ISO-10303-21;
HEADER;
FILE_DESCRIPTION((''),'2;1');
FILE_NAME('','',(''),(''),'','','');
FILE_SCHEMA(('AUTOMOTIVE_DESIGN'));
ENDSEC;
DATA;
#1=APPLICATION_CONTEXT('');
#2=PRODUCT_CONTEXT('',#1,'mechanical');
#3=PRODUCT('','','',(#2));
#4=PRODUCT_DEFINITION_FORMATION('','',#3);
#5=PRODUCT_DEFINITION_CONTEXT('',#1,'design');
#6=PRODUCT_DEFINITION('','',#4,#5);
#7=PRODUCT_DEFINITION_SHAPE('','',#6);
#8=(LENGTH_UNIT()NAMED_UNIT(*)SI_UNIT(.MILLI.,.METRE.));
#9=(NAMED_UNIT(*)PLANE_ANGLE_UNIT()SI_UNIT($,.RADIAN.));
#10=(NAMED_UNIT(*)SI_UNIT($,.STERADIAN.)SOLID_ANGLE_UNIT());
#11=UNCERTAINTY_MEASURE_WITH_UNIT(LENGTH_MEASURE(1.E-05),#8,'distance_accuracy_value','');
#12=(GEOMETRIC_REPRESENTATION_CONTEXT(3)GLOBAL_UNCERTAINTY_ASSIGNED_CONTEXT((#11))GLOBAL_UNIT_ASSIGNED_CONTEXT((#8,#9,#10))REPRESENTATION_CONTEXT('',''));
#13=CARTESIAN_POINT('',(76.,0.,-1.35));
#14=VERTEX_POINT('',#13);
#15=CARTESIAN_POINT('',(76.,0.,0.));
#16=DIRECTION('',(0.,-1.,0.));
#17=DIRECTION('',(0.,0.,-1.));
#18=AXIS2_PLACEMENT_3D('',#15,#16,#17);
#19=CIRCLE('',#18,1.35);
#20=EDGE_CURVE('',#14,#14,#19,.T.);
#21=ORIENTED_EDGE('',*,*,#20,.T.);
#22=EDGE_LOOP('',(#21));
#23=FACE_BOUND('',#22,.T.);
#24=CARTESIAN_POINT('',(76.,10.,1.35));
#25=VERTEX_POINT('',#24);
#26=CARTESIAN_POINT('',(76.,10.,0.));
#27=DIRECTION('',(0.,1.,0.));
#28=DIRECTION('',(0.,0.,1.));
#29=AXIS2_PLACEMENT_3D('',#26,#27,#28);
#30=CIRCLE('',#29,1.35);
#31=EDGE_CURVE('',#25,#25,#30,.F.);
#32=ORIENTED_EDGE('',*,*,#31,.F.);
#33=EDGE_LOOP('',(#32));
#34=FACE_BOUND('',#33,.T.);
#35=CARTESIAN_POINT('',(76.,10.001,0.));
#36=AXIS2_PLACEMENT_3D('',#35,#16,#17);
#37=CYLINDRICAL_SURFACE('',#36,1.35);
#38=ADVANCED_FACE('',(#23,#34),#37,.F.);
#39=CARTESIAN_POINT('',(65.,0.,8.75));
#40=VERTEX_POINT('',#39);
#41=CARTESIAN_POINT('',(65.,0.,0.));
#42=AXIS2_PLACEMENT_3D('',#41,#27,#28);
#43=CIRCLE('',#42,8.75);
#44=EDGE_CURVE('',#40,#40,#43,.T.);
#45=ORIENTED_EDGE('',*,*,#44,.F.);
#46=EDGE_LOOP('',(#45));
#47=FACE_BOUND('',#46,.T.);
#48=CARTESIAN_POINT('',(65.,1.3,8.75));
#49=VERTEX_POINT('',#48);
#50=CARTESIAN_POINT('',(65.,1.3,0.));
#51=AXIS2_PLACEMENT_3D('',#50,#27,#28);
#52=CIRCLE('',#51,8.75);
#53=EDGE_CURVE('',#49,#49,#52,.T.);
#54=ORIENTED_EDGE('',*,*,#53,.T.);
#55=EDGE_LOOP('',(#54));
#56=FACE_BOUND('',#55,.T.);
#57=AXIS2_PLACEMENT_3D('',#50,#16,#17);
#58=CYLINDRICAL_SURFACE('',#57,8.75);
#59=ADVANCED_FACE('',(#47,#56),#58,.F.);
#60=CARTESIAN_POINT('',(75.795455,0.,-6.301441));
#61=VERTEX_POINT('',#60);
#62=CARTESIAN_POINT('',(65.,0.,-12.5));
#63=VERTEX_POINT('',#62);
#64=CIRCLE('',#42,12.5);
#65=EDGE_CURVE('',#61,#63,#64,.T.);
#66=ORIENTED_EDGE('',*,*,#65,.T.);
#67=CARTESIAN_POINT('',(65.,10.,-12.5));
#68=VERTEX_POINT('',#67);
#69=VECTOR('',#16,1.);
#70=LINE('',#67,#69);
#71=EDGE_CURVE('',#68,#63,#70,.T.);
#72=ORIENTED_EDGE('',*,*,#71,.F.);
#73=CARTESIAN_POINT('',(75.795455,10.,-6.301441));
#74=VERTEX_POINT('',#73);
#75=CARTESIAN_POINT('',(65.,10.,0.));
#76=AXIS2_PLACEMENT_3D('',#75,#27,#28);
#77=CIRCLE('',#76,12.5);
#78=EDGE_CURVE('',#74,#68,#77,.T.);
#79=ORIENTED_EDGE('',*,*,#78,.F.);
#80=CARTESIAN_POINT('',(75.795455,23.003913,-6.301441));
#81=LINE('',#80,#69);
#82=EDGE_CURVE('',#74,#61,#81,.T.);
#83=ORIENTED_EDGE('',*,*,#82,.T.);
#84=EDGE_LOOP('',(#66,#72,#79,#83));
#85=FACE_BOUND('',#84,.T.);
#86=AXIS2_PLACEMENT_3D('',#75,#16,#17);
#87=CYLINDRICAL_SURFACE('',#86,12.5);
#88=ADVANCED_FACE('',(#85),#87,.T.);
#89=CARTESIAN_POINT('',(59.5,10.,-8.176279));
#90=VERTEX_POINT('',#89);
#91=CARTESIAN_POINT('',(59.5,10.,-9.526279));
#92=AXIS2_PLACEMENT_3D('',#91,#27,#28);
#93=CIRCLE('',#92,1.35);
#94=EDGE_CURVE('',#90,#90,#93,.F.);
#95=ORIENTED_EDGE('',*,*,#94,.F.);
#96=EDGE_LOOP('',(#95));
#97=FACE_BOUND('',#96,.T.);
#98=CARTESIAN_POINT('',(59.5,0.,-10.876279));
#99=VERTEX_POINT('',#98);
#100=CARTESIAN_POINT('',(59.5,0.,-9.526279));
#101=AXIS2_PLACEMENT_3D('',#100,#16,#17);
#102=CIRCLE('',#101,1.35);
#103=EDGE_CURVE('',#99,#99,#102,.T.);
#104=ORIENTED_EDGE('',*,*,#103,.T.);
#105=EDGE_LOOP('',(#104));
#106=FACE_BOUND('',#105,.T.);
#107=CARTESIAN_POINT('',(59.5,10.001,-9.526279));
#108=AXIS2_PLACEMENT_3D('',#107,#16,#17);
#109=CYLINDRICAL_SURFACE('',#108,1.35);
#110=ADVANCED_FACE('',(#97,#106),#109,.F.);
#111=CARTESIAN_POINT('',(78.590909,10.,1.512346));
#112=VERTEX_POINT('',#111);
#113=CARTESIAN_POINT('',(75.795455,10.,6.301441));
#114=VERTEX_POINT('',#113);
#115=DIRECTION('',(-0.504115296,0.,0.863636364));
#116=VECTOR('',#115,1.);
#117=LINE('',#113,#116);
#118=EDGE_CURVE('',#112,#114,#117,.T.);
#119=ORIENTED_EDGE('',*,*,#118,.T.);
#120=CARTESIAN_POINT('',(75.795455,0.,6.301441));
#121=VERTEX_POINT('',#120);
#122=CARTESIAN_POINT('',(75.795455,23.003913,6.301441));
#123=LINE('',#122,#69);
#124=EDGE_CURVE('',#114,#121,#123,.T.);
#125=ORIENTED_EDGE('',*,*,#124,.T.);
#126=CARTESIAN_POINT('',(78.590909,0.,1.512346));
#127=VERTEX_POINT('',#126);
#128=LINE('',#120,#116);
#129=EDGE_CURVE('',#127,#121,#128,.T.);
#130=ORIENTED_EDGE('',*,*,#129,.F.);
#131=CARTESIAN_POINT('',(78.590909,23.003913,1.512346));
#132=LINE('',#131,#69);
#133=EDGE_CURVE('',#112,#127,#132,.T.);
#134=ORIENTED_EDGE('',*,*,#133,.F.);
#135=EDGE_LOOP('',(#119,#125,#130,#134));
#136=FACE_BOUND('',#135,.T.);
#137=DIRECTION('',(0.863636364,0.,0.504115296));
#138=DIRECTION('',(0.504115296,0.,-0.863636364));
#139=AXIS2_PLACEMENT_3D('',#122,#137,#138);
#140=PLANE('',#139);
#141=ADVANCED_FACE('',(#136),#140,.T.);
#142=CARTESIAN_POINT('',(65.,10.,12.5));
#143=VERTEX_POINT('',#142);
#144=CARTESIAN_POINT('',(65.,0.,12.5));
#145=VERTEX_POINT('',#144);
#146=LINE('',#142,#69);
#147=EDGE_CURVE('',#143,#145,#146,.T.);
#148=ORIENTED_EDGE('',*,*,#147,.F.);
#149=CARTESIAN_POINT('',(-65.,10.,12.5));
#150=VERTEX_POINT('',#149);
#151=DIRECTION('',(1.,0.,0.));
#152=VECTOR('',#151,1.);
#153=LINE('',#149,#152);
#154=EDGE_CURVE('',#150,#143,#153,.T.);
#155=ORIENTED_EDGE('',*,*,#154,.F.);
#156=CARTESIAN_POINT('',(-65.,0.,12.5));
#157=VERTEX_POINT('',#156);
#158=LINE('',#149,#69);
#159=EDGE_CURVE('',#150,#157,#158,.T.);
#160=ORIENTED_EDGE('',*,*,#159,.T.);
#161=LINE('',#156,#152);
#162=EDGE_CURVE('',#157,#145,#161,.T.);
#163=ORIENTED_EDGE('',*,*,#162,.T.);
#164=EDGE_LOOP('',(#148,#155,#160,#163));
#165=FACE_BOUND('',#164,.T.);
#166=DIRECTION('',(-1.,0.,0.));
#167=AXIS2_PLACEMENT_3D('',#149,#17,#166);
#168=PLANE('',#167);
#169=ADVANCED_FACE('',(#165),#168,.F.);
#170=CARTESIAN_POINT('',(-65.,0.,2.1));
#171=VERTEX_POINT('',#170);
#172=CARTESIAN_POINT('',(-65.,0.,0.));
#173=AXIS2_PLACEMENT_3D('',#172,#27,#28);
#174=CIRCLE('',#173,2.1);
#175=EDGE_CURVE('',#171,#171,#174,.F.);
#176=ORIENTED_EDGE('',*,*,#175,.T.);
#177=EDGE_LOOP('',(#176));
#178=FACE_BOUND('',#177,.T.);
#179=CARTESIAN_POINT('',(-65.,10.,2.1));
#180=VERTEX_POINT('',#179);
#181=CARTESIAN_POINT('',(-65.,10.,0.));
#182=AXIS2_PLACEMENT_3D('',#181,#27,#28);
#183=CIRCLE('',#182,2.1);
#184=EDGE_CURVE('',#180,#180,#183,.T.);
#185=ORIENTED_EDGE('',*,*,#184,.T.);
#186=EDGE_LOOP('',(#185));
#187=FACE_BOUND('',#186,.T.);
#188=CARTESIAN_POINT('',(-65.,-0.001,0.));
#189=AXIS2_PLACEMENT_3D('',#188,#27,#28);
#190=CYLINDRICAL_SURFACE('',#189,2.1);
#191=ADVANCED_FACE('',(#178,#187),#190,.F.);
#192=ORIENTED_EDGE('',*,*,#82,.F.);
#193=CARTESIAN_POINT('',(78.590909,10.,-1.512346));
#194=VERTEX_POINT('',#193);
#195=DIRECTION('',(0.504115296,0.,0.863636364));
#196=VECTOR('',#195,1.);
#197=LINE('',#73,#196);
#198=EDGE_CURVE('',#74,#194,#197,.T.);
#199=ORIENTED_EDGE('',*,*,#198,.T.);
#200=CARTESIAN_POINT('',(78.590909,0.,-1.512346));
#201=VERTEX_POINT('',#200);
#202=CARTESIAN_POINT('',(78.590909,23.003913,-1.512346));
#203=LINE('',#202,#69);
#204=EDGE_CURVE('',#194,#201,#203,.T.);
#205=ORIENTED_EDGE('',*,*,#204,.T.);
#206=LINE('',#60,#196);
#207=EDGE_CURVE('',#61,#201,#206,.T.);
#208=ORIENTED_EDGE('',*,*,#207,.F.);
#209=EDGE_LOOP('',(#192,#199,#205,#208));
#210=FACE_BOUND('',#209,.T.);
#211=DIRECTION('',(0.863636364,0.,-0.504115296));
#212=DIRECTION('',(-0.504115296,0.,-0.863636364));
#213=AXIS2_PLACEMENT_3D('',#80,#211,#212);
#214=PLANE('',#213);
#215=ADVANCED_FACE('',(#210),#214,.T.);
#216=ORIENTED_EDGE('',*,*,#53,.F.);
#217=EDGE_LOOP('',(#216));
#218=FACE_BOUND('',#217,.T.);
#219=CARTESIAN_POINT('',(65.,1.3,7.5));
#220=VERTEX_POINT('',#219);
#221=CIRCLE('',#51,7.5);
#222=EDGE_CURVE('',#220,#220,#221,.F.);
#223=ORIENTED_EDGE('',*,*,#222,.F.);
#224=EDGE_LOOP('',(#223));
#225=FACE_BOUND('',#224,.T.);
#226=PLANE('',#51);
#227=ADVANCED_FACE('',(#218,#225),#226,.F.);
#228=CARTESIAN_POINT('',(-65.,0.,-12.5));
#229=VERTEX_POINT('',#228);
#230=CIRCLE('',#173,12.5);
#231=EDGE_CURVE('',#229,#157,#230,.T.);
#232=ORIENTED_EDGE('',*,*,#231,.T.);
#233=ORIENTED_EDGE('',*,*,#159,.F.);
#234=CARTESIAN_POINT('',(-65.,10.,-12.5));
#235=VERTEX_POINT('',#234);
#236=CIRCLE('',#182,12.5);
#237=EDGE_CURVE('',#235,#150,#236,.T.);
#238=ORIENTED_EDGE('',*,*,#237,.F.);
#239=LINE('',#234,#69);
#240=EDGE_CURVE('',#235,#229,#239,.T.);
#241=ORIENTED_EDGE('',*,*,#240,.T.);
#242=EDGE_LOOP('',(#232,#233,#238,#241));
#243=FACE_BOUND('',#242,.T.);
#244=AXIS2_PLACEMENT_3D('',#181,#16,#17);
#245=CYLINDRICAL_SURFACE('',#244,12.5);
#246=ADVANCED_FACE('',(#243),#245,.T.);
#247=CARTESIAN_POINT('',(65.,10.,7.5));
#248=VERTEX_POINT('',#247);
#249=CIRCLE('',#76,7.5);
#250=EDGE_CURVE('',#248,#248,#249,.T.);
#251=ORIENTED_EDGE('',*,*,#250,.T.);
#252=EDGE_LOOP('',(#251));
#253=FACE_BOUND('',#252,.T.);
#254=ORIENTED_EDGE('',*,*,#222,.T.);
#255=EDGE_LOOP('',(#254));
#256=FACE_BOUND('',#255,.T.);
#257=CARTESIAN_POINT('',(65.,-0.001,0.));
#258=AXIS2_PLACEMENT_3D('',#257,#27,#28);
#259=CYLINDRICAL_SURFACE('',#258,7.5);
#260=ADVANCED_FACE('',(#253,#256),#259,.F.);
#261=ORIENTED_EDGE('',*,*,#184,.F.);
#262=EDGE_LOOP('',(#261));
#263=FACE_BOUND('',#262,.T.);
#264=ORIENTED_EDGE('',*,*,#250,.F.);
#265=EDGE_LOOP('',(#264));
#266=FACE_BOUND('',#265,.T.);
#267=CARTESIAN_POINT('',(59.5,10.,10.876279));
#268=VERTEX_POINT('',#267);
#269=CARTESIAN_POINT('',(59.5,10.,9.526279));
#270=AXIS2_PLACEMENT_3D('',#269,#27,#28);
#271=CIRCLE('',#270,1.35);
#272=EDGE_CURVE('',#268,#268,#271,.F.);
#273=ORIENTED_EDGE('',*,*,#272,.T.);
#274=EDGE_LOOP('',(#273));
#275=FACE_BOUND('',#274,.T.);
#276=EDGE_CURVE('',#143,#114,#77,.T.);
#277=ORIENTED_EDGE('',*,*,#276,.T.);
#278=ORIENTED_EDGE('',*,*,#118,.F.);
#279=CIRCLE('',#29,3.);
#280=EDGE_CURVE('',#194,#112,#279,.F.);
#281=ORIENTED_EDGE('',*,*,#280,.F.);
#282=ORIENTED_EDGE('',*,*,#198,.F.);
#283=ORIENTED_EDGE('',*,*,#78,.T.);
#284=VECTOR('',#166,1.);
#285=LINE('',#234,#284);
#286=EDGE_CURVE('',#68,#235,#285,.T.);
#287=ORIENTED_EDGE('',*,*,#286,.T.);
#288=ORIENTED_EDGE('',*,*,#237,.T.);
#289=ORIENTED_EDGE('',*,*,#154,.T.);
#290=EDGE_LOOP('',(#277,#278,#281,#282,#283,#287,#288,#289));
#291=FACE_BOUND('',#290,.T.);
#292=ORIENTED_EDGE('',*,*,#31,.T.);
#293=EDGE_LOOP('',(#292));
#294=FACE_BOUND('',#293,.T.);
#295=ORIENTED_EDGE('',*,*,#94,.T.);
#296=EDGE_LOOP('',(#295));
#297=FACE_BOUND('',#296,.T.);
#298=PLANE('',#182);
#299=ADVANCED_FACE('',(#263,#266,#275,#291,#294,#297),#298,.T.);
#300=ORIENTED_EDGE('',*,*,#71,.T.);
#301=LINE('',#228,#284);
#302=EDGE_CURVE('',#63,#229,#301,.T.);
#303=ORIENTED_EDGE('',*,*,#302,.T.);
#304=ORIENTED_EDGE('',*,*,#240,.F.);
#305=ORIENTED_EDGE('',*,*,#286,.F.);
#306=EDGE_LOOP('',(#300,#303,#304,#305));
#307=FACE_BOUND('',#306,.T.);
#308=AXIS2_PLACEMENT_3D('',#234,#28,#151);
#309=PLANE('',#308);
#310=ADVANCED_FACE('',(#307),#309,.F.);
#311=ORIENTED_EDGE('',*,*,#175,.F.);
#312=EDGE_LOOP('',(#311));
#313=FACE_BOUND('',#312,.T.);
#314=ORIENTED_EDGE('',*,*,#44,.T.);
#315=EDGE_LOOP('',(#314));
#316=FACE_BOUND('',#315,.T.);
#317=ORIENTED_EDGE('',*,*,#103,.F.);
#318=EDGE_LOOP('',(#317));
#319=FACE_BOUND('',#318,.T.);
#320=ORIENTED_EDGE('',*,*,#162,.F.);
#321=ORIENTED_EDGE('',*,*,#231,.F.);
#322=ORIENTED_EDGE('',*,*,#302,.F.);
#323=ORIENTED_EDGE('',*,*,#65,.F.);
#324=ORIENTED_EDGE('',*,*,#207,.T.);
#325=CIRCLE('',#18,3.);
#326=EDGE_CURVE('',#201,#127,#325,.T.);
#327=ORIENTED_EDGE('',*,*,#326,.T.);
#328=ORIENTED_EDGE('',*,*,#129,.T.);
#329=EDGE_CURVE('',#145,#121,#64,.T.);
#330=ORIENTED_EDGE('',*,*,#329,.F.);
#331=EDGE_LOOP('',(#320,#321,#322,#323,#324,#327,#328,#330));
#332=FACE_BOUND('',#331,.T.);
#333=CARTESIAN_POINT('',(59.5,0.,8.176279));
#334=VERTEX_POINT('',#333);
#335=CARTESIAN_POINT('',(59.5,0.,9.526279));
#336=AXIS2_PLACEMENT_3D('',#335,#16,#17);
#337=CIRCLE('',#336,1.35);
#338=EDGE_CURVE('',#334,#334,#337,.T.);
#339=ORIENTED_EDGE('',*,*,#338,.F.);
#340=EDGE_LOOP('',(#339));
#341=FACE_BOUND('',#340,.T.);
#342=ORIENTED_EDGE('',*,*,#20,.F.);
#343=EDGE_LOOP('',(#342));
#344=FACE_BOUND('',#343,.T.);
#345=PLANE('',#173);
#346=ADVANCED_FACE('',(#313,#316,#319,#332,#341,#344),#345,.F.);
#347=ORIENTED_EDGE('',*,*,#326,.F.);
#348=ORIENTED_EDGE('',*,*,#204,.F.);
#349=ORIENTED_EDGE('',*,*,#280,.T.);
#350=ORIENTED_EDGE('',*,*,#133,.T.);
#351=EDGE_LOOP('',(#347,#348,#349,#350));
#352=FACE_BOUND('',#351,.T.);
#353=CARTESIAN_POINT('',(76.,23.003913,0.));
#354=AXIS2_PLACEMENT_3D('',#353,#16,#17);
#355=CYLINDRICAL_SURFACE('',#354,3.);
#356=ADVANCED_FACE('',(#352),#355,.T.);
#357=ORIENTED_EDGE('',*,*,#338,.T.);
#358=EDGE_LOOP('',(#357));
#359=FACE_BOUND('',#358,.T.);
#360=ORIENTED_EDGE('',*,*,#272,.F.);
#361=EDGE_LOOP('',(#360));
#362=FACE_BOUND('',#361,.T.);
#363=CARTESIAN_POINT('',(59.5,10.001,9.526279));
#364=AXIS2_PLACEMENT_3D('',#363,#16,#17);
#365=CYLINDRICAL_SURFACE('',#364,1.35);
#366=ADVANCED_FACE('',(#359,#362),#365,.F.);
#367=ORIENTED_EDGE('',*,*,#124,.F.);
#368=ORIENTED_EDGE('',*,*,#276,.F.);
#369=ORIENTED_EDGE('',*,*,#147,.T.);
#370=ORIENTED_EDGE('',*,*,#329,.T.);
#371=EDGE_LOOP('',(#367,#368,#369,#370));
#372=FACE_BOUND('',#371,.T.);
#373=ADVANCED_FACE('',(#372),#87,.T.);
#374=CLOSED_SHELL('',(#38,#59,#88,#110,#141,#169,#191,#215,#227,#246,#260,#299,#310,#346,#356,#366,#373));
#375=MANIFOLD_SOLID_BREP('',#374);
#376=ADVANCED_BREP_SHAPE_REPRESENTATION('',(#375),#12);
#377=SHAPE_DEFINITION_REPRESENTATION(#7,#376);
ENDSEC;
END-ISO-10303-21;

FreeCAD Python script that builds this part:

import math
import FreeCAD as App
import Part
import Sketcher

V = App.Vector
Q = App.Units.Quantity

doc = App.newDocument("Part")
body = doc.addObject("PartDesign::Body", "Body")

sketch1 = body.newObject("Sketcher::SketchObject", "Sketch")
sketch1.AttachmentSupport = (doc.getObject("XZ_Plane"), [""])
sketch1.MapMode = "FlatFace"
sketch1.addGeometry([
    Part.LineSegment(V(65, -12, 0), V(-65, -12, 0)),
    Part.ArcOfCircle(Part.Circle(V(-65, 0, 0), V(0, 0, 1), 12), math.radians(90), math.radians(270)),
    Part.LineSegment(V(-65, 12, 0), V(65, 12, 0)),
    Part.ArcOfCircle(Part.Circle(V(65, 0, 0), V(0, 0, 1), 12), math.radians(-90), math.radians(90)),
], False)
sketch1.addConstraint([
    Sketcher.Constraint("Tangent", 0, 2, 1, 2),
    Sketcher.Constraint("Tangent", 1, 1, 2, 1),
    Sketcher.Constraint("Tangent", 2, 2, 3, 2),
    Sketcher.Constraint("Tangent", 3, 1, 0, 1),
    Sketcher.Constraint("Horizontal", 0),
    Sketcher.Constraint("Horizontal", 2),
    Sketcher.Constraint("Symmetric", 1, 3, 3, 3, -1, 1),
    Sketcher.Constraint("Radius", 1, Q("12.5 mm")),
    Sketcher.Constraint("DistanceX", 0, 2, 0, 1, Q("130 mm")),
])
pad1 = body.newObject("PartDesign::Pad", "Pad")
pad1.Profile = sketch1
pad1.Length = 10
pad1.Reversed = True

sketch2 = body.newObject("Sketcher::SketchObject", "Sketch001")
sketch2.AttachmentSupport = (doc.getObject("XZ_Plane"), [""])
sketch2.MapMode = "FlatFace"
sketch2.addGeometry([
    Part.LineSegment(V(75.8, -6.3, 0), V(78.6, -1.5, 0)),
    Part.ArcOfCircle(Part.Circle(V(76, 0, 0), V(0, 0, 1), 3), math.radians(-30), math.radians(30)),
    Part.LineSegment(V(78.6, 1.5, 0), V(75.8, 6.3, 0)),
    Part.LineSegment(V(75.8, 6.3, 0), V(75.8, -6.3, 0)),
], False)
sketch2.addConstraint([
    Sketcher.Constraint("Tangent", 0, 2, 1, 1),
    Sketcher.Constraint("Tangent", 1, 2, 2, 1),
    Sketcher.Constraint("Coincident", 2, 2, 3, 1),
    Sketcher.Constraint("Coincident", 3, 2, 0, 1),
    Sketcher.Constraint("Vertical", 3),
    Sketcher.Constraint("Symmetric", 0, 2, 1, 2, -1),
    Sketcher.Constraint("Radius", 1, Q("3 mm")),
    Sketcher.Constraint("DistanceX", -1, 1, 1, 3, Q("76 mm")),
    Sketcher.Constraint("Distance", 0, Q("5.545268 mm")),
    Sketcher.Constraint("DistanceY", 3, 2, 3, 1, Q("12.602882 mm")),
])
pad2 = body.newObject("PartDesign::Pad", "Pad001")
pad2.Profile = sketch2
pad2.Length = 10
pad2.Reversed = True

sketch3 = body.newObject("Sketcher::SketchObject", "Sketch002")
sketch3.AttachmentSupport = (doc.getObject("XZ_Plane"), [""])
sketch3.MapMode = "FlatFace"
sketch3.AttachmentOffset = App.Placement(V(0, 0, -10), App.Rotation())
sketch3.addGeometry(Part.Circle(V(65, 0, 0), V(0, 0, 1), 8), False)
sketch3.addConstraint([
    Sketcher.Constraint("PointOnObject", 0, 3, -1),
    Sketcher.Constraint("Diameter", 0, Q("15 mm")),
    Sketcher.Constraint("DistanceX", -1, 1, 0, 3, Q("65 mm")),
])
pocket1 = body.newObject("PartDesign::Pocket", "Pocket")
pocket1.Profile = sketch3
pocket1.Type = "UpToFirst"
pocket1.Reversed = True

sketch4 = body.newObject("Sketcher::SketchObject", "Sketch003")
sketch4.AttachmentSupport = (doc.getObject("XZ_Plane"), [""])
sketch4.MapMode = "FlatFace"
sketch4.addGeometry(Part.Circle(V(65, 0, 0), V(0, 0, 1), 9), False)
sketch4.addConstraint([
    Sketcher.Constraint("PointOnObject", 0, 3, -1),
    Sketcher.Constraint("Diameter", 0, Q("17.5 mm")),
    Sketcher.Constraint("DistanceX", -1, 1, 0, 3, Q("65 mm")),
])
pocket2 = body.newObject("PartDesign::Pocket", "Pocket001")
pocket2.Profile = sketch4
pocket2.Length = 1.3

sketch5 = body.newObject("Sketcher::SketchObject", "Sketch004")
sketch5.AttachmentSupport = (doc.getObject("XZ_Plane"), [""])
sketch5.MapMode = "FlatFace"
sketch5.addGeometry(Part.Circle(V(59.5, 9.5, 0), V(0, 0, 1), 1.4), False)
sketch5.addConstraint([
    Sketcher.Constraint("Diameter", 0, Q("2.7 mm")),
    Sketcher.Constraint("DistanceX", -1, 1, 0, 3, Q("59.5 mm")),
    Sketcher.Constraint("DistanceY", -1, 1, 0, 3, Q("9.526279 mm")),
])
pocket3 = body.newObject("PartDesign::Pocket", "Pocket002")
pocket3.Profile = sketch5
pocket3.Type = "UpToFirst"

sketch6 = body.newObject("Sketcher::SketchObject", "Sketch005")
sketch6.AttachmentSupport = (doc.getObject("XZ_Plane"), [""])
sketch6.MapMode = "FlatFace"
sketch6.addGeometry(Part.Circle(V(76, 0, 0), V(0, 0, 1), 1.4), False)
sketch6.addConstraint([
    Sketcher.Constraint("PointOnObject", 0, 3, -1),
    Sketcher.Constraint("Diameter", 0, Q("2.7 mm")),
    Sketcher.Constraint("DistanceX", -1, 1, 0, 3, Q("76 mm")),
])
pocket4 = body.newObject("PartDesign::Pocket", "Pocket003")
pocket4.Profile = sketch6
pocket4.Type = "UpToFirst"

sketch7 = body.newObject("Sketcher::SketchObject", "Sketch006")
sketch7.AttachmentSupport = (doc.getObject("XZ_Plane"), [""])
sketch7.MapMode = "FlatFace"
sketch7.addGeometry(Part.Circle(V(59.5, -9.5, 0), V(0, 0, 1), 1.4), False)
sketch7.addConstraint([
    Sketcher.Constraint("Diameter", 0, Q("2.7 mm")),
    Sketcher.Constraint("DistanceX", -1, 1, 0, 3, Q("59.5 mm")),
    Sketcher.Constraint("DistanceY", 0, 3, -1, 1, Q("9.526279 mm")),
])
pocket5 = body.newObject("PartDesign::Pocket", "Pocket004")
pocket5.Profile = sketch7
pocket5.Type = "UpToFirst"

sketch8 = body.newObject("Sketcher::SketchObject", "Sketch007")
sketch8.AttachmentSupport = (doc.getObject("XZ_Plane"), [""])
sketch8.MapMode = "FlatFace"
sketch8.AttachmentOffset = App.Placement(V(0, 0, -10), App.Rotation())
sketch8.addGeometry(Part.Circle(V(-65, 0, 0), V(0, 0, 1), 2.1), False)
sketch8.addConstraint([
    Sketcher.Constraint("PointOnObject", 0, 3, -1),
    Sketcher.Constraint("Diameter", 0, Q("4.2 mm")),
    Sketcher.Constraint("DistanceX", 0, 3, -1, 1, Q("65 mm")),
])
pocket6 = body.newObject("PartDesign::Pocket", "Pocket005")
pocket6.Profile = sketch8
pocket6.Type = "UpToFirst"
pocket6.Reversed = True

doc.recompute()
